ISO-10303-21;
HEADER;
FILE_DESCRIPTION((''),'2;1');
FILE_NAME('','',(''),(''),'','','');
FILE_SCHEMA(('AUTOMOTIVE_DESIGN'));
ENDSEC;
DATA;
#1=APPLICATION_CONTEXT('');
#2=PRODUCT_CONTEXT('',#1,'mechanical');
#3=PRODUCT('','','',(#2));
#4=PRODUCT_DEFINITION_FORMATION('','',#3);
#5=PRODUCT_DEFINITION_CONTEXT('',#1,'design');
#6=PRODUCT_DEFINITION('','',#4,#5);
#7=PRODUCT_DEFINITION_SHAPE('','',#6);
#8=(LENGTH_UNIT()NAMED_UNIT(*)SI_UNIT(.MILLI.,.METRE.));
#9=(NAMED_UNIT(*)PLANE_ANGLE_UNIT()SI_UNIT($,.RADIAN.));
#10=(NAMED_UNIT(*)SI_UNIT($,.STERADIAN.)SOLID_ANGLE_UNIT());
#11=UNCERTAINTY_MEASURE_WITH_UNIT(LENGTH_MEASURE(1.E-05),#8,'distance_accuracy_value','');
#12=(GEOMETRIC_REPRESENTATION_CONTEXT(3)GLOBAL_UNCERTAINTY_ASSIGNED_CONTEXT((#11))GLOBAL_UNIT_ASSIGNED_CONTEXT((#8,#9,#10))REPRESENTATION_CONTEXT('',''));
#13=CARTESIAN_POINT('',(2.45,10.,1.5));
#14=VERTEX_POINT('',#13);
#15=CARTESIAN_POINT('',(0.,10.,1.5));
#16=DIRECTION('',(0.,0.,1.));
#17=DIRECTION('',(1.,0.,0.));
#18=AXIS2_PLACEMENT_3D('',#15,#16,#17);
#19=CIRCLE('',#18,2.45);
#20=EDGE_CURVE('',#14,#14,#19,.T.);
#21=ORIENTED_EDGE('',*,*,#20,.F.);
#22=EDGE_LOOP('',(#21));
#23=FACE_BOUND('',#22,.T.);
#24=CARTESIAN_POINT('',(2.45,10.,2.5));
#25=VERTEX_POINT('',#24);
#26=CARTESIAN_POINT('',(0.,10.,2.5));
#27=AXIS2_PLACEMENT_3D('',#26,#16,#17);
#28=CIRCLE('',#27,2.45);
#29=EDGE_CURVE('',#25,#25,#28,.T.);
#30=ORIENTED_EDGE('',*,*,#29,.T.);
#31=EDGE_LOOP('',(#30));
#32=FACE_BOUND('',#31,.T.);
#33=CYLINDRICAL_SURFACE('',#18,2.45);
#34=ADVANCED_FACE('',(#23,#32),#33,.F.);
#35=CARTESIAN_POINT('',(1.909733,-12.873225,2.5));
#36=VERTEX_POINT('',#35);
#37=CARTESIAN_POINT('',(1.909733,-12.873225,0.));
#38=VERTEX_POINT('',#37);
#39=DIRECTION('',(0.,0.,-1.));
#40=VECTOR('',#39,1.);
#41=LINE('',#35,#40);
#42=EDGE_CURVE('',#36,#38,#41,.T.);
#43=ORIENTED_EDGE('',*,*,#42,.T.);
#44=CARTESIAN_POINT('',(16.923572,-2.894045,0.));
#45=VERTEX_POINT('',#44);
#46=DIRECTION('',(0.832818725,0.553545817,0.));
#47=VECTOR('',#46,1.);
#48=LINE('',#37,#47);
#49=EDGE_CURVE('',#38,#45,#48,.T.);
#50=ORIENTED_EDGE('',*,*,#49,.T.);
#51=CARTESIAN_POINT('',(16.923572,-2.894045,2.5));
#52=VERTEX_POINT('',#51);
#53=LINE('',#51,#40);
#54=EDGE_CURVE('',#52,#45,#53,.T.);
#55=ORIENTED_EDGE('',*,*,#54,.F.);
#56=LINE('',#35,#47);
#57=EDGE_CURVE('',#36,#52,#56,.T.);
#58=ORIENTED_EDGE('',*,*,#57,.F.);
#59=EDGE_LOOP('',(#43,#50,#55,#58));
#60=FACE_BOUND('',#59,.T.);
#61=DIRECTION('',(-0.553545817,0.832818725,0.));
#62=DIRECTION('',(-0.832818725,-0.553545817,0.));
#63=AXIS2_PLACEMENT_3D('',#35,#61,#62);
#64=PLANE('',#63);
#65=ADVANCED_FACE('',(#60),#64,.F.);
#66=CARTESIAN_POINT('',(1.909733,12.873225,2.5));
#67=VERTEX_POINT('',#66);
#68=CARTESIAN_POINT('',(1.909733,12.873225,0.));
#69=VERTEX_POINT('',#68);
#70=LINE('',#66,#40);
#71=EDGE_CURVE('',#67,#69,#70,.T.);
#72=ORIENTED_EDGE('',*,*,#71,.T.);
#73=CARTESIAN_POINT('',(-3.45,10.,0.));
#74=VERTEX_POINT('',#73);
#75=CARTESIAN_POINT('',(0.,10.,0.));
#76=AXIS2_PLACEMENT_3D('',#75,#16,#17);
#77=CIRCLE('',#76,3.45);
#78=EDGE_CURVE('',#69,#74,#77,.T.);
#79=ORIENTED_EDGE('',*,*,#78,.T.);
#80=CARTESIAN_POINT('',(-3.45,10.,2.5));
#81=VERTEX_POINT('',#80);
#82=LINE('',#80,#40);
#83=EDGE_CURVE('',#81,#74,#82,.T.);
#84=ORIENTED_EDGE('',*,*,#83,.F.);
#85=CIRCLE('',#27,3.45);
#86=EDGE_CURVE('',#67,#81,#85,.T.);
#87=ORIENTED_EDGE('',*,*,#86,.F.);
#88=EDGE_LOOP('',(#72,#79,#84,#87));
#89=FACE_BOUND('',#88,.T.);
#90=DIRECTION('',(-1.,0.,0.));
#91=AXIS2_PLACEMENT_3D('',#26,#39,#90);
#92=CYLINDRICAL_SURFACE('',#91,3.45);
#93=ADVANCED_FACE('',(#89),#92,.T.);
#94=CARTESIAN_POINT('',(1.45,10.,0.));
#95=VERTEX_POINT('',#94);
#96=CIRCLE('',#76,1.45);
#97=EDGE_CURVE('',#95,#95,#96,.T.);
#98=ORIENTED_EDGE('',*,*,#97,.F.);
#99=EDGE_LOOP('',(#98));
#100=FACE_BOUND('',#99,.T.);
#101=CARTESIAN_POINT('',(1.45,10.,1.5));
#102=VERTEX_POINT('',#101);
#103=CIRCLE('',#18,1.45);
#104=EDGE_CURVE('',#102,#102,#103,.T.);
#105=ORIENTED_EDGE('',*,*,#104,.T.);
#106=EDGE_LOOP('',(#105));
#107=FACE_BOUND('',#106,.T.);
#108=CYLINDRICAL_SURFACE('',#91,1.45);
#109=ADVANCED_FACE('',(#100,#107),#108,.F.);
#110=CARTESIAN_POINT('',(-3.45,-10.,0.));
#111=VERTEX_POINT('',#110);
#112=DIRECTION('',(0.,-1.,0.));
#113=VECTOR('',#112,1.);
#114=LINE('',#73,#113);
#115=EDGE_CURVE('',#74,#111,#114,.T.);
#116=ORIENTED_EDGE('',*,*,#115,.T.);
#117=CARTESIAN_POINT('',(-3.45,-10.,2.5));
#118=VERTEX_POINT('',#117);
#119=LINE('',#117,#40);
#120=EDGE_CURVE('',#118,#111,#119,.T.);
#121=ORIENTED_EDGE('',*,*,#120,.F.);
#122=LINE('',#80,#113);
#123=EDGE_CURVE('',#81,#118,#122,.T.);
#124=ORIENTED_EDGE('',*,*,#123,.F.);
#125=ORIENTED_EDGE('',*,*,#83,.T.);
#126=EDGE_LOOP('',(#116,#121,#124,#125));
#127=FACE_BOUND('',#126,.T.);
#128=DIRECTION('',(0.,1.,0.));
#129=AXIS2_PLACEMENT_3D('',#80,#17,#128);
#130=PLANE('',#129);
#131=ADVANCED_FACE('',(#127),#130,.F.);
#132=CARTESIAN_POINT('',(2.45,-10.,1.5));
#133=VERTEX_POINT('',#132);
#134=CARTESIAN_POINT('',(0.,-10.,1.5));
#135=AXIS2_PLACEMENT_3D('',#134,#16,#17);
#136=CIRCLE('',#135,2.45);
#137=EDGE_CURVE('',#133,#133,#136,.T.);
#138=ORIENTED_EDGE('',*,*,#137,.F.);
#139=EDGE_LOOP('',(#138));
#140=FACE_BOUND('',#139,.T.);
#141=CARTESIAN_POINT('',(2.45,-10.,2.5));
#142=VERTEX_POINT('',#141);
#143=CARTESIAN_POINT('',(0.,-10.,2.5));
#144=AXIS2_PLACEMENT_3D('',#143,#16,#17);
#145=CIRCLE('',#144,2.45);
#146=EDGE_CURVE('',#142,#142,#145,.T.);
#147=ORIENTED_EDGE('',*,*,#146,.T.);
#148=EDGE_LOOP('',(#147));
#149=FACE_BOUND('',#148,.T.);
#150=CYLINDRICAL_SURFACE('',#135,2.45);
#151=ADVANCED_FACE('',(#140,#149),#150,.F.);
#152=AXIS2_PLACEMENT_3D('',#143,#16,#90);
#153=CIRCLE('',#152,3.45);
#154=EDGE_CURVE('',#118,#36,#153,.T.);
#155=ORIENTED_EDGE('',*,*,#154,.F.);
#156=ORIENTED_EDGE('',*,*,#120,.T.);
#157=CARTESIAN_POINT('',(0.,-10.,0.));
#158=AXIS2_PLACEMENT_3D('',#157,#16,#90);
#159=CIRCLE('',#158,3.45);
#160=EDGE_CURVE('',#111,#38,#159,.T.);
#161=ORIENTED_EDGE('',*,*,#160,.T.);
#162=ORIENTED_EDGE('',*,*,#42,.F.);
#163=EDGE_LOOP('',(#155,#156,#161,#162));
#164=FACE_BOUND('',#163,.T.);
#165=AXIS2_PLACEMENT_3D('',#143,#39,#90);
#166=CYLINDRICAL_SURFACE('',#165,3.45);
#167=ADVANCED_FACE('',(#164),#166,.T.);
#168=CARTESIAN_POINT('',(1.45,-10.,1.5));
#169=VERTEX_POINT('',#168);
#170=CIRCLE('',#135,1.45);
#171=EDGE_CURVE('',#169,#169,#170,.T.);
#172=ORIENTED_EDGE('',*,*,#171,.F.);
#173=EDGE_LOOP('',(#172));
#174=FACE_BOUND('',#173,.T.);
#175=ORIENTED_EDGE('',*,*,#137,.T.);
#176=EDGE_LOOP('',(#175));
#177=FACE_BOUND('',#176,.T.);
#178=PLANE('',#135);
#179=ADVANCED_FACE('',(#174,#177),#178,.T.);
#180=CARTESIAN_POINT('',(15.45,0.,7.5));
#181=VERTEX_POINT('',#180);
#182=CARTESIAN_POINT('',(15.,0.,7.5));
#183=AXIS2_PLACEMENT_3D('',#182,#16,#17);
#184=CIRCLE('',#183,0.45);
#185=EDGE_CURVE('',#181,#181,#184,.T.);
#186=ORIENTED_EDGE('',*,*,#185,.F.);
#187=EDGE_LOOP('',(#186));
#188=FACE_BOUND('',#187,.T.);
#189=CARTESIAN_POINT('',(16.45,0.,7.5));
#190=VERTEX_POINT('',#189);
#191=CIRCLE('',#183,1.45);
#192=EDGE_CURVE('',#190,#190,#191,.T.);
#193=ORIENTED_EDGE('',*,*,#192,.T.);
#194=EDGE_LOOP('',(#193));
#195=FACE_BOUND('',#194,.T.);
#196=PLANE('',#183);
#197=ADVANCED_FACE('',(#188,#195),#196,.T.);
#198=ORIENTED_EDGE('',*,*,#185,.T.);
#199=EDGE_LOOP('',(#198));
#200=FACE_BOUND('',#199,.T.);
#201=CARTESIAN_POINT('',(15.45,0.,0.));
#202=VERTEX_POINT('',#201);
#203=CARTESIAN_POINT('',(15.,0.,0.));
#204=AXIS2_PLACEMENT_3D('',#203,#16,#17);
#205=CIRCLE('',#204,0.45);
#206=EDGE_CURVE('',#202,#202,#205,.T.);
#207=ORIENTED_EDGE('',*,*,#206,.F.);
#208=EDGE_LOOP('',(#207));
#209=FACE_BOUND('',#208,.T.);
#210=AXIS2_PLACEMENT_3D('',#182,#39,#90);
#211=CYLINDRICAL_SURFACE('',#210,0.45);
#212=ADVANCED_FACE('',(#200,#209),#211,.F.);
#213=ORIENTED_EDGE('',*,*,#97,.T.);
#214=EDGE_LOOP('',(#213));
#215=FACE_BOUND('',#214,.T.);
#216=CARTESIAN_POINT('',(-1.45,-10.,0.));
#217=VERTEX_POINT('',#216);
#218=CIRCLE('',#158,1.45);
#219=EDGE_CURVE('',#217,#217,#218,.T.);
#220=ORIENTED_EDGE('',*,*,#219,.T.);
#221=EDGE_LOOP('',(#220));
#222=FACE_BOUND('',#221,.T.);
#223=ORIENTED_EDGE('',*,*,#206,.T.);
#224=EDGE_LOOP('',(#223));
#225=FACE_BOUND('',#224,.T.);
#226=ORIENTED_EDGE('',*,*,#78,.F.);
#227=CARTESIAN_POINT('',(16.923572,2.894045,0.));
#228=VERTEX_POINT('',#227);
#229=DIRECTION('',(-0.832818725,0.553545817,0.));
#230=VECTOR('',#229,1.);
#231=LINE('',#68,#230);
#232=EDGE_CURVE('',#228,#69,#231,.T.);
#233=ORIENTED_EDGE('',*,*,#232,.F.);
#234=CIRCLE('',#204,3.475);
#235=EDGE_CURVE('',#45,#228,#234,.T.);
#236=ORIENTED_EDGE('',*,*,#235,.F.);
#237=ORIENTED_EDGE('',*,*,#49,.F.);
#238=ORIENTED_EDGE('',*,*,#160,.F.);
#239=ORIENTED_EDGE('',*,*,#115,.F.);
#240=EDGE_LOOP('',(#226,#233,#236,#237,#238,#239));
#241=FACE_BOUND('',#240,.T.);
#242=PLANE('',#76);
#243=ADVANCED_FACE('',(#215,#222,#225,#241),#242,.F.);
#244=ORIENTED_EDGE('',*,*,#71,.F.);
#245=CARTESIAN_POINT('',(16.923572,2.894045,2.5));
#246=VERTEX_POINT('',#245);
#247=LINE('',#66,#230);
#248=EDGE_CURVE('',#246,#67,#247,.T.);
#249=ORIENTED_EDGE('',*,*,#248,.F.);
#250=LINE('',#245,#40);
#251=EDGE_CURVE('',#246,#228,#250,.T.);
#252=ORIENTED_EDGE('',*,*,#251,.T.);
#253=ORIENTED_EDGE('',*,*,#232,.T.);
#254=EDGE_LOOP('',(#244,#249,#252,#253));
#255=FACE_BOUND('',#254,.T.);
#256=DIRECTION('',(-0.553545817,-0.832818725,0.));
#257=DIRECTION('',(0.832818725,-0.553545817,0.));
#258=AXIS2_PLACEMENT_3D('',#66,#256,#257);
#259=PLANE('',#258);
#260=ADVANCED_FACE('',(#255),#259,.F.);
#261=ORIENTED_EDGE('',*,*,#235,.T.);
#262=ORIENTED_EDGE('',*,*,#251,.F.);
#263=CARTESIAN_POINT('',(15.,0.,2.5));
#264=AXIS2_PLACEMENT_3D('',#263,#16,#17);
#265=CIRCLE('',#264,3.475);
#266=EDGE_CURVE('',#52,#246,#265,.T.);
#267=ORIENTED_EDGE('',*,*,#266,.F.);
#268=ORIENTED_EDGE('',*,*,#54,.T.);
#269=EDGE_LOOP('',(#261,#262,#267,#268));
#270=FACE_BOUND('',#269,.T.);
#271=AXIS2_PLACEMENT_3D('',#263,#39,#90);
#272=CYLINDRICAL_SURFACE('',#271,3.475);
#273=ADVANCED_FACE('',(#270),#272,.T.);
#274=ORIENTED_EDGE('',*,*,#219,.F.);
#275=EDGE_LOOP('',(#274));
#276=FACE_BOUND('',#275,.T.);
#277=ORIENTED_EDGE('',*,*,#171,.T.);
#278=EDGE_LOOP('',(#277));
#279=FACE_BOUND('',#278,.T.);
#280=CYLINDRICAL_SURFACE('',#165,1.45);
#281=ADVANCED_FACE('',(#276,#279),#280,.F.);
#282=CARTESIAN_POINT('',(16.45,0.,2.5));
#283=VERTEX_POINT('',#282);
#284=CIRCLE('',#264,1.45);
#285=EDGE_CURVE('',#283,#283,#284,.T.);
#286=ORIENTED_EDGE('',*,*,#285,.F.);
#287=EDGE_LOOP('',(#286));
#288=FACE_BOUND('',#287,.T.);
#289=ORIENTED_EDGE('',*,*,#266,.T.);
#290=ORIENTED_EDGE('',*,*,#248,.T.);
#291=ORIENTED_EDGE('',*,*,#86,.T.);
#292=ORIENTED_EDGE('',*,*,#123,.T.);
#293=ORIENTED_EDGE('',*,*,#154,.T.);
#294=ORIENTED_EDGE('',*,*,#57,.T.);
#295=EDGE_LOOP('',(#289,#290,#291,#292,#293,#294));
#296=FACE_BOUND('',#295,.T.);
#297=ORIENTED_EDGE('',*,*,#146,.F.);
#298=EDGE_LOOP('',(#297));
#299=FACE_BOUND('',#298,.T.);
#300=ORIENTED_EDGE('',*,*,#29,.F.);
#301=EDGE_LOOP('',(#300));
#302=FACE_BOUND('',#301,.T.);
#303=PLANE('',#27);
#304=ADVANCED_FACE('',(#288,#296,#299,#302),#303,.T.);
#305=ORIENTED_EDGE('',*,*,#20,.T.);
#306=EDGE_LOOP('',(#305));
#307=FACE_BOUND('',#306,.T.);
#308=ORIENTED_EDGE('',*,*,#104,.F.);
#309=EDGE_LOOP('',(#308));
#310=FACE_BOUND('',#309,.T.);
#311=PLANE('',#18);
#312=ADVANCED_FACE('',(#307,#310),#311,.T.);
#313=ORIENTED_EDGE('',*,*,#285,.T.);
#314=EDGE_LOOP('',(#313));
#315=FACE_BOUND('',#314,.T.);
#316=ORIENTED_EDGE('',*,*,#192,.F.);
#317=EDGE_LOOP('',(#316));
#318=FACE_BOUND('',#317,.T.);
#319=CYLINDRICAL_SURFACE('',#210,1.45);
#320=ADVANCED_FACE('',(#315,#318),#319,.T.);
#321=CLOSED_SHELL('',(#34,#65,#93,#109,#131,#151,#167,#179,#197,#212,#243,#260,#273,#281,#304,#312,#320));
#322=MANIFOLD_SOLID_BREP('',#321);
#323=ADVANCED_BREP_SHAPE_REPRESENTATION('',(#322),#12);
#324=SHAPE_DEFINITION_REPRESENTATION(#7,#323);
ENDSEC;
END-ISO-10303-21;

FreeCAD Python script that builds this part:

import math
import FreeCAD as App
import Part
import Sketcher

doc = App.newDocument("Part")
body = doc.addObject("PartDesign::Body", "Body")

# Sketch on XY plane
sketch1 = body.newObject("Sketcher::SketchObject", "Sketch")
sketch1.AttachmentSupport = (doc.getObject("XY_Plane"), [""])
sketch1.MapMode = "FlatFace"
sketch1.addGeometry(Part.LineSegment(App.Vector(-3.5, 10, 0), App.Vector(-3.5, -10, 0)), False)
sketch1.addGeometry(Part.ArcOfCircle(Part.Circle(App.Vector(0, -10, 0), App.Vector(0, 0, 1), 3.5), math.radians(180), math.radians(304)), False)
sketch1.addGeometry(Part.LineSegment(App.Vector(1.9, -12.9, 0), App.Vector(16.9, -2.9, 0)), False)
sketch1.addGeometry(Part.ArcOfCircle(Part.Circle(App.Vector(15, 0, 0), App.Vector(0, 0, 1), 3.5), math.radians(-56), math.radians(56)), False)
sketch1.addGeometry(Part.LineSegment(App.Vector(16.9, 2.9, 0), App.Vector(1.9, 12.9, 0)), False)
sketch1.addGeometry(Part.ArcOfCircle(Part.Circle(App.Vector(0, 10, 0), App.Vector(0, 0, 1), 3.5), math.radians(56), math.radians(180)), False)
sketch1.addGeometry(Part.Circle(App.Vector(0, -10, 0), App.Vector(0, 0, 1), 1.4), False)
sketch1.addGeometry(Part.Circle(App.Vector(0, 10, 0), App.Vector(0, 0, 1), 1.4), False)
sketch1.addConstraint(Sketcher.Constraint("Tangent", 0, 2, 1, 1))
sketch1.addConstraint(Sketcher.Constraint("Tangent", 1, 2, 2, 1))
sketch1.addConstraint(Sketcher.Constraint("Tangent", 2, 2, 3, 1))
sketch1.addConstraint(Sketcher.Constraint("Tangent", 3, 2, 4, 1))
sketch1.addConstraint(Sketcher.Constraint("Tangent", 4, 2, 5, 1))
sketch1.addConstraint(Sketcher.Constraint("Tangent", 5, 2, 0, 1))
sketch1.addConstraint(Sketcher.Constraint("Vertical", 0))
sketch1.addConstraint(Sketcher.Constraint("Coincident", 6, 3, 1, 3))
sketch1.addConstraint(Sketcher.Constraint("Coincident", 7, 3, 5, 3))
sketch1.addConstraint(Sketcher.Constraint("Equal", 1, 5))
sketch1.addConstraint(Sketcher.Constraint("Equal", 6, 7))
sketch1.addConstraint(Sketcher.Constraint("Symmetric", 1, 3, 5, 3, -1, 1))
sketch1.addConstraint(Sketcher.Constraint("PointOnObject", 3, 3, -1))
sketch1.addConstraint(Sketcher.Constraint("Diameter", 6, 2.9))
sketch1.addConstraint(Sketcher.Constraint("DistanceY", 0, 2, 0, 1, 20.0))
sketch1.addConstraint(Sketcher.Constraint("Radius", 1, 3.45))
sketch1.addConstraint(Sketcher.Constraint("DistanceX", -1, 1, 3, 3, 15.0))
sketch1.addConstraint(Sketcher.Constraint("Radius", 3, 3.475))
pad1 = body.newObject("PartDesign::Pad", "Pad")
pad1.Profile = sketch1
pad1.Length = 2.5

# Sketch on XY plane
sketch2 = body.newObject("Sketcher::SketchObject", "Sketch001")
sketch2.AttachmentSupport = (doc.getObject("XY_Plane"), [""])
sketch2.MapMode = "FlatFace"
sketch2.AttachmentOffset = App.Placement(App.Vector(0, 0, 2.5), App.Rotation())
sketch2.addGeometry(Part.Circle(App.Vector(0, 10, 0), App.Vector(0, 0, 1), 2.5), False)
sketch2.addGeometry(Part.Circle(App.Vector(0, -10, 0), App.Vector(0, 0, 1), 2.5), False)
sketch2.addConstraint(Sketcher.Constraint("Equal", 0, 1))
sketch2.addConstraint(Sketcher.Constraint("Symmetric", 0, 3, 1, 3, -1, 1))
sketch2.addConstraint(Sketcher.Constraint("PointOnObject", 0, 3, -2))
sketch2.addConstraint(Sketcher.Constraint("Diameter", 0, 4.9))
sketch2.addConstraint(Sketcher.Constraint("DistanceY", -1, 1, 0, 3, 10.0))
pocket1 = body.newObject("PartDesign::Pocket", "Pocket")
pocket1.Profile = sketch2
pocket1.Length = 1

# Sketch on XY plane
sketch3 = body.newObject("Sketcher::SketchObject", "Sketch002")
sketch3.AttachmentSupport = (doc.getObject("XY_Plane"), [""])
sketch3.MapMode = "FlatFace"
sketch3.AttachmentOffset = App.Placement(App.Vector(0, 0, 2.5), App.Rotation())
sketch3.addGeometry(Part.Circle(App.Vector(15, 0, 0), App.Vector(0, 0, 1), 1.45), False)
sketch3.addGeometry(Part.Circle(App.Vector(15, 0, 0), App.Vector(0, 0, 1), 0.45), False)
sketch3.addConstraint(Sketcher.Constraint("Coincident", 1, 3, 0, 3))
sketch3.addConstraint(Sketcher.Constraint("PointOnObject", 0, 3, -1))
sketch3.addConstraint(Sketcher.Constraint("Diameter", 0, 2.9))
sketch3.addConstraint(Sketcher.Constraint("Diameter", 1, 0.9))
sketch3.addConstraint(Sketcher.Constraint("DistanceX", -1, 1, 0, 3, 15.0))
pad2 = body.newObject("PartDesign::Pad", "Pad001")
pad2.Profile = sketch3
pad2.Length = 5

# Sketch on XY plane
sketch4 = body.newObject("Sketcher::SketchObject", "Sketch003")
sketch4.AttachmentSupport = (doc.getObject("XY_Plane"), [""])
sketch4.MapMode = "FlatFace"
sketch4.AttachmentOffset = App.Placement(App.Vector(0, 0, 2.5), App.Rotation())
sketch4.addGeometry(Part.Circle(App.Vector(15, 0, 0), App.Vector(0, 0, 1), 0.45), False)
sketch4.addConstraint(Sketcher.Constraint("PointOnObject", 0, 3, -1))
sketch4.addConstraint(Sketcher.Constraint("Diameter", 0, 0.9))
sketch4.addConstraint(Sketcher.Constraint("DistanceX", -1, 1, 0, 3, 15.0))
pocket2 = body.newObject("PartDesign::Pocket", "Pocket001")
pocket2.Profile = sketch4
pocket2.Type = "ThroughAll"

doc.recompute()
